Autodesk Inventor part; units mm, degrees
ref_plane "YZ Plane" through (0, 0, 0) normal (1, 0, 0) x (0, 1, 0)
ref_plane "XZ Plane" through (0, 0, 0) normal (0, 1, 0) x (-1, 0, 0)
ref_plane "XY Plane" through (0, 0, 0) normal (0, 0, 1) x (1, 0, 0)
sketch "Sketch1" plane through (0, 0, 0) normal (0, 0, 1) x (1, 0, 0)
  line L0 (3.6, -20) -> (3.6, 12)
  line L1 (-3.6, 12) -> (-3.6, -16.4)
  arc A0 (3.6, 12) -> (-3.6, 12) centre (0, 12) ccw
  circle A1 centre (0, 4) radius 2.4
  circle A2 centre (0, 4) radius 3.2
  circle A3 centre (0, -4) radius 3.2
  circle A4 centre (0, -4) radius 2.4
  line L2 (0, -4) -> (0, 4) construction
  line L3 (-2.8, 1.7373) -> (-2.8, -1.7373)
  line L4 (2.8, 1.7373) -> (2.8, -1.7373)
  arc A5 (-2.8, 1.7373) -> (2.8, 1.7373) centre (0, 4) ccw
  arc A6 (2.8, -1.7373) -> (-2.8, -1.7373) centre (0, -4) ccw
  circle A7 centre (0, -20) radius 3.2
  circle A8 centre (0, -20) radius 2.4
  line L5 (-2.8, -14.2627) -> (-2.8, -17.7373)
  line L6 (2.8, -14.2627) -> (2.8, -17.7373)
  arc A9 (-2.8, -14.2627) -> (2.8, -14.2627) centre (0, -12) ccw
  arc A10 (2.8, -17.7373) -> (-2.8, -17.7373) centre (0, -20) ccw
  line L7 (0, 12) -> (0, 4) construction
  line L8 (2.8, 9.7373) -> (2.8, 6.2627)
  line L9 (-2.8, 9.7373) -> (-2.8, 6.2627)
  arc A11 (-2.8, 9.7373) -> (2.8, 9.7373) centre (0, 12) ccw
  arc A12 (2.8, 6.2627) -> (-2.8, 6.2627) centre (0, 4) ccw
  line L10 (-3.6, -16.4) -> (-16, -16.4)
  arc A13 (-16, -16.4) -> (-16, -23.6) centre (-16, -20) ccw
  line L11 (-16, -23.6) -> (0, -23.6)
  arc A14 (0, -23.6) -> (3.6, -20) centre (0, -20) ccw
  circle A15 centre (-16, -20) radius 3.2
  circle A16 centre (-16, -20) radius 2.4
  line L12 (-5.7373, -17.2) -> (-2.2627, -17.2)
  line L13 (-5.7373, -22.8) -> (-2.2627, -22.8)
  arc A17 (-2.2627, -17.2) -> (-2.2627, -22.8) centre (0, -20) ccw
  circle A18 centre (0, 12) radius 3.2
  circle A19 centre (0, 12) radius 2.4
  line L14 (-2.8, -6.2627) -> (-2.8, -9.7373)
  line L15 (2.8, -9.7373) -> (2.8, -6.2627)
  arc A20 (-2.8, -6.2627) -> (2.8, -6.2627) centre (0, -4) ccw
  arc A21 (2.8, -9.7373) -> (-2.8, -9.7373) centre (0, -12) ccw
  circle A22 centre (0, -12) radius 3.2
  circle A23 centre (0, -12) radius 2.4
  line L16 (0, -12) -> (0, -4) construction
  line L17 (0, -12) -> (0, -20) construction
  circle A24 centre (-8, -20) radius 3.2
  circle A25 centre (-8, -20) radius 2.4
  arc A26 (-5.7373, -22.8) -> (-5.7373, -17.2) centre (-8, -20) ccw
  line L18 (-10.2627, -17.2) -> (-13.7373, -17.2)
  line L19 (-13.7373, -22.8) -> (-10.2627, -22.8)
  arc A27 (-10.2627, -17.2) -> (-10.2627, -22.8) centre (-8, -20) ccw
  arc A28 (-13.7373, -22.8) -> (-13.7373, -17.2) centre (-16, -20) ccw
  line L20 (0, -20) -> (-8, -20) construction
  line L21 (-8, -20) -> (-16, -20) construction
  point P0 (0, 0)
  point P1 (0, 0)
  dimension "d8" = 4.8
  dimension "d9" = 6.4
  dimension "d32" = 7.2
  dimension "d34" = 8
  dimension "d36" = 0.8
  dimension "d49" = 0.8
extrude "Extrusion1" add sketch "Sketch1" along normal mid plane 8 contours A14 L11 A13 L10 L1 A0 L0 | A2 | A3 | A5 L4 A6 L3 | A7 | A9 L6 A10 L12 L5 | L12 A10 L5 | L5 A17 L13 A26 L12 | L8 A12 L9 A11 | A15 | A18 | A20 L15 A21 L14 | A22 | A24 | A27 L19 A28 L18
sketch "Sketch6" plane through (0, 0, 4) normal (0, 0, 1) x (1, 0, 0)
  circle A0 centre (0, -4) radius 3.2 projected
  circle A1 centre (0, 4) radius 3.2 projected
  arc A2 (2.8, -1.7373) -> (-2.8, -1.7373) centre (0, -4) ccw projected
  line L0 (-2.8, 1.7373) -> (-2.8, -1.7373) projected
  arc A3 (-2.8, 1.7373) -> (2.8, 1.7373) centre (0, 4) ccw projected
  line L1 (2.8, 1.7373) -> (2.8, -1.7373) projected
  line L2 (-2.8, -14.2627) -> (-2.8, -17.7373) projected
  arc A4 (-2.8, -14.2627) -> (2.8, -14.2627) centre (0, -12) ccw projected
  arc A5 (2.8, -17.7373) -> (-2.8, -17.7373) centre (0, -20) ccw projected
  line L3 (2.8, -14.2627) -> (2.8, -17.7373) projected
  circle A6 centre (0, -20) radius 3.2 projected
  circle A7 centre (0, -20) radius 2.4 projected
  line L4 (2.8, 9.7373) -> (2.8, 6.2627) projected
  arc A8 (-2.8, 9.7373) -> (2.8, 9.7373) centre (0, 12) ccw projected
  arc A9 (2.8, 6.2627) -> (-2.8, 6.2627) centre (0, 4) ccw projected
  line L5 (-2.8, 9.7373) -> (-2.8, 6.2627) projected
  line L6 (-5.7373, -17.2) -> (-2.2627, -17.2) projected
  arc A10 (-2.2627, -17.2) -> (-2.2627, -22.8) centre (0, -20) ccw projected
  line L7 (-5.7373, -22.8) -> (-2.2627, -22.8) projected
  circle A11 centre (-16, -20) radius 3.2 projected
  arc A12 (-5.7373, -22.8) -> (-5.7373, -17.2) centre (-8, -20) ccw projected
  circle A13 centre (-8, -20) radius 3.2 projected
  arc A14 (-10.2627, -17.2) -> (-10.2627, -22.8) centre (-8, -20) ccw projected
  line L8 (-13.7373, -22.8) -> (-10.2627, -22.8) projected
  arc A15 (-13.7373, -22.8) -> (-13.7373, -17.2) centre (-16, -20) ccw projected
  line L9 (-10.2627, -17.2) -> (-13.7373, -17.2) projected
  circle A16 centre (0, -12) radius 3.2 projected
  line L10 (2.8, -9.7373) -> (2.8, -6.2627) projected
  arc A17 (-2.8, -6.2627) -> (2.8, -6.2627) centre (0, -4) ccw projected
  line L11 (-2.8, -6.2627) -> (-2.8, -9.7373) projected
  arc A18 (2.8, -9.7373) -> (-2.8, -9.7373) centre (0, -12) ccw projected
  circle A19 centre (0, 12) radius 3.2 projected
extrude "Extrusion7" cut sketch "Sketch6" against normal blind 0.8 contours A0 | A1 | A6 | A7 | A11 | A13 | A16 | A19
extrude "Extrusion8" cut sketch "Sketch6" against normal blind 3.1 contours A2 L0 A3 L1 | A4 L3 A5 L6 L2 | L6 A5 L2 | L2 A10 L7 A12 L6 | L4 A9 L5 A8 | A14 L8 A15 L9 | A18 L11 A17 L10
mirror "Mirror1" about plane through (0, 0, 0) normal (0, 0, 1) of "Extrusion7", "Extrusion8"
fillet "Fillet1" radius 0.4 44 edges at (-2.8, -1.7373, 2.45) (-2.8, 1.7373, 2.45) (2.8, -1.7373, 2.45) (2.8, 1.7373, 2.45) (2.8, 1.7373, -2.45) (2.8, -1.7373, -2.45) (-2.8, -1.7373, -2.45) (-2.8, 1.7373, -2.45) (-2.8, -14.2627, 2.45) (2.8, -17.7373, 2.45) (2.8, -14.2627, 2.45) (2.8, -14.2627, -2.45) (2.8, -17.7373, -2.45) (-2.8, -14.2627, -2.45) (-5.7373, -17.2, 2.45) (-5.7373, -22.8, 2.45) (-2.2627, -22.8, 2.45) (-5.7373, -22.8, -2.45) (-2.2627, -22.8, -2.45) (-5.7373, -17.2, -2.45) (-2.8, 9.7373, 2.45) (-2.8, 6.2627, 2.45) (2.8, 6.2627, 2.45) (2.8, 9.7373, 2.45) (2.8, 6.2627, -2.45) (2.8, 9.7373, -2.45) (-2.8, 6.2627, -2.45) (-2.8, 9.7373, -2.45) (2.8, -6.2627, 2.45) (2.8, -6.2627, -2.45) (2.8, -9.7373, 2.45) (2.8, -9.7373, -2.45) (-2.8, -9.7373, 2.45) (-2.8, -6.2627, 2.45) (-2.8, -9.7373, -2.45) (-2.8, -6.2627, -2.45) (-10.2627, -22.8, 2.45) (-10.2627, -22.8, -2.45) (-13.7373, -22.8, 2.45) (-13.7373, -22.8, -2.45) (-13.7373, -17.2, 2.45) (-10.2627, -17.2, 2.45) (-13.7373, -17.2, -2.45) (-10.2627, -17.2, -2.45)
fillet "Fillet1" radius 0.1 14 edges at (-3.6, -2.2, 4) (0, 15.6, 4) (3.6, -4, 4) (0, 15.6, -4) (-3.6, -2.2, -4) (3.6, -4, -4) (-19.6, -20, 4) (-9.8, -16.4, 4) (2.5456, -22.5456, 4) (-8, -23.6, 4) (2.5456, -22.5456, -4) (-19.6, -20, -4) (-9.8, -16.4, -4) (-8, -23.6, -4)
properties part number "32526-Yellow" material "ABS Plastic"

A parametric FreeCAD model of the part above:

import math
import FreeCAD as App
import Part
import Sketcher


def edges_at(feature, points):
    """Names of the edges that pass closest to the given points."""
    edges = feature.Shape.Edges
    near = lambda p: min(range(len(edges)), key=lambda i: edges[i].distToShape(Part.Vertex(*p))[0])
    return sorted({f"Edge{near(p) + 1}" for p in points})

doc = App.newDocument("Part")
body = doc.addObject("PartDesign::Body", "Body")

sketch1 = body.newObject("Sketcher::SketchObject", "Sketch")
sketch1.AttachmentSupport = (doc.getObject("XY_Plane"), [""])
sketch1.MapMode = "FlatFace"
sketch1.addGeometry([
    Part.ArcOfCircle(Part.Circle(App.Vector(0, -20, 0), App.Vector(0, 0, 1), 3.6), math.radians(-90), math.radians(0)),
    Part.LineSegment(App.Vector(3.6, -20, 0), App.Vector(3.6, 12, 0)),
    Part.ArcOfCircle(Part.Circle(App.Vector(0, 12, 0), App.Vector(0, 0, 1), 3.6), math.radians(0), math.radians(180)),
    Part.LineSegment(App.Vector(-3.6, 12, 0), App.Vector(-3.6, -16.4, 0)),
    Part.LineSegment(App.Vector(-3.6, -16.4, 0), App.Vector(-16, -16.4, 0)),
    Part.ArcOfCircle(Part.Circle(App.Vector(-16, -20, 0), App.Vector(0, 0, 1), 3.6), math.radians(90), math.radians(270)),
    Part.LineSegment(App.Vector(-16, -23.6, 0), App.Vector(0, -23.6, 0)),
    Part.Circle(App.Vector(-16, -20, 0), App.Vector(0, 0, 1), 2.4),
    Part.Circle(App.Vector(-8, -20, 0), App.Vector(0, 0, 1), 2.4),
    Part.Circle(App.Vector(0, -20, 0), App.Vector(0, 0, 1), 2.4),
    Part.Circle(App.Vector(0, -12, 0), App.Vector(0, 0, 1), 2.4),
    Part.Circle(App.Vector(0, -4, 0), App.Vector(0, 0, 1), 2.4),
    Part.Circle(App.Vector(0, 4, 0), App.Vector(0, 0, 1), 2.4),
    Part.Circle(App.Vector(0, 12, 0), App.Vector(0, 0, 1), 2.4),
], False)
sketch1.addConstraint([
    Sketcher.Constraint("Tangent", 0, 2, 1, 1),
    Sketcher.Constraint("Tangent", 1, 2, 2, 1),
    Sketcher.Constraint("Tangent", 2, 2, 3, 1),
    Sketcher.Constraint("Coincident", 3, 2, 4, 1),
    Sketcher.Constraint("Tangent", 4, 2, 5, 1),
    Sketcher.Constraint("Tangent", 5, 2, 6, 1),
    Sketcher.Constraint("Tangent", 6, 2, 0, 1),
    Sketcher.Constraint("Vertical", 1),
    Sketcher.Constraint("Vertical", 3),
    Sketcher.Constraint("Horizontal", 4),
    Sketcher.Constraint("Horizontal", 6),
    Sketcher.Constraint("Coincident", 7, 3, 5, 3),
    Sketcher.Constraint("Coincident", 9, 3, 0, 3),
    Sketcher.Constraint("Coincident", 13, 3, 2, 3),
    Sketcher.Constraint("Equal", 0, 2),
    Sketcher.Constraint("Equal", 2, 5),
    Sketcher.Constraint("Equal", 7, 8),
    Sketcher.Constraint("Equal", 8, 9),
    Sketcher.Constraint("Equal", 9, 10),
    Sketcher.Constraint("Equal", 10, 11),
    Sketcher.Constraint("Equal", 11, 12),
    Sketcher.Constraint("Equal", 12, 13),
    Sketcher.Constraint("Symmetric", 2, 3, 10, 3, -1, 1),
    Sketcher.Constraint("Symmetric", 11, 3, 12, 3, -1, 1),
    Sketcher.Constraint("PointOnObject", 0, 3, -2),
    Sketcher.Constraint("PointOnObject", 11, 3, -2),
    Sketcher.Constraint("Horizontal", 7, 3, 8, 3),
    Sketcher.Constraint("Diameter", 7, 4.8),
    Sketcher.Constraint("Radius", 0, 3.6),
    Sketcher.Constraint("DistanceX", 8, 3, -1, 1, 8.0),
    Sketcher.Constraint("DistanceX", 5, 3, 8, 3, 8.0),
    Sketcher.Constraint("DistanceY", 0, 3, 10, 3, 8.0),
    Sketcher.Constraint("DistanceY", 10, 3, 11, 3, 8.0),
    Sketcher.Constraint("DistanceY", 11, 3, 12, 3, 8.0),
])
pad1 = body.newObject("PartDesign::Pad", "Pad")
pad1.Profile = sketch1
pad1.Length = 8
pad1.Midplane = True

sketch2 = body.newObject("Sketcher::SketchObject", "Sketch001")
sketch2.AttachmentSupport = (doc.getObject("XY_Plane"), [""])
sketch2.MapMode = "FlatFace"
sketch2.AttachmentOffset = App.Placement(App.Vector(0, 0, 4), App.Rotation())
sketch2.addGeometry([
    Part.Circle(App.Vector(0, -4, 0), App.Vector(0, 0, 1), 3.2),
    Part.Circle(App.Vector(0, 4, 0), App.Vector(0, 0, 1), 3.2),
    Part.Circle(App.Vector(0, -20, 0), App.Vector(0, 0, 1), 3.2),
    Part.Circle(App.Vector(-16, -20, 0), App.Vector(0, 0, 1), 3.2),
    Part.Circle(App.Vector(-8, -20, 0), App.Vector(0, 0, 1), 3.2),
    Part.Circle(App.Vector(0, -12, 0), App.Vector(0, 0, 1), 3.2),
    Part.Circle(App.Vector(0, 12, 0), App.Vector(0, 0, 1), 3.2),
], False)
sketch2.addConstraint([
    Sketcher.Constraint("Equal", 0, 1),
    Sketcher.Constraint("Equal", 1, 2),
    Sketcher.Constraint("Equal", 2, 3),
    Sketcher.Constraint("Equal", 3, 4),
    Sketcher.Constraint("Equal", 4, 5),
    Sketcher.Constraint("Equal", 5, 6),
    Sketcher.Constraint("Symmetric", 0, 3, 1, 3, -1, 1),
    Sketcher.Constraint("Symmetric", 5, 3, 6, 3, -1, 1),
    Sketcher.Constraint("PointOnObject", 0, 3, -2),
    Sketcher.Constraint("PointOnObject", 2, 3, -2),
    Sketcher.Constraint("PointOnObject", 5, 3, -2),
    Sketcher.Constraint("Horizontal", 2, 3, 3, 3),
    Sketcher.Constraint("Horizontal", 3, 3, 4, 3),
    Sketcher.Constraint("Diameter", 0, 6.4),
    Sketcher.Constraint("DistanceY", 0, 3, -1, 1, 4.0),
    Sketcher.Constraint("DistanceY", 2, 3, -1, 1, 20.0),
    Sketcher.Constraint("DistanceX", 3, 3, -1, 1, 16.0),
    Sketcher.Constraint("DistanceX", 4, 3, -1, 1, 8.0),
    Sketcher.Constraint("DistanceY", 5, 3, -1, 1, 12.0),
])
pocket1 = body.newObject("PartDesign::Pocket", "Pocket")
pocket1.Profile = sketch2
pocket1.Length = 0.8

sketch3 = body.newObject("Sketcher::SketchObject", "Sketch002")
sketch3.AttachmentSupport = (doc.getObject("XY_Plane"), [""])
sketch3.MapMode = "FlatFace"
sketch3.AttachmentOffset = App.Placement(App.Vector(0, 0, 4), App.Rotation())
sketch3.addGeometry([
    Part.ArcOfCircle(Part.Circle(App.Vector(0, -4, 0), App.Vector(0, 0, 1), 3.599974), math.radians(38.941925), math.radians(141.058075)),
    Part.LineSegment(App.Vector(2.8, -1.7373, 0), App.Vector(2.8, 1.7373, 0)),
    Part.ArcOfCircle(Part.Circle(App.Vector(0, 4, 0), App.Vector(0, 0, 1), 3.599974), math.radians(-141.058075), math.radians(-38.941925)),
    Part.LineSegment(App.Vector(-2.8, 1.7373, 0), App.Vector(-2.8, -1.7373, 0)),
    Part.ArcOfCircle(Part.Circle(App.Vector(0, -12, 0), App.Vector(0, 0, 1), 3.599974), math.radians(-141.058075), math.radians(-38.941925)),
    Part.LineSegment(App.Vector(-2.8, -14.2627, 0), App.Vector(-2.8, -17.2, 0)),
    Part.LineSegment(App.Vector(-2.8, -17.2, 0), App.Vector(-5.7373, -17.2, 0)),
    Part.ArcOfCircle(Part.Circle(App.Vector(-8, -20, 0), App.Vector(0, 0, 1), 3.599974), math.radians(-51.058075), math.radians(51.058075)),
    Part.LineSegment(App.Vector(-5.7373, -22.8, 0), App.Vector(-2.2627, -22.8, 0)),
    Part.ArcOfCircle(Part.Circle(App.Vector(0, -20, 0), App.Vector(0, 0, 1), 3.599974), math.radians(38.941925), math.radians(231.058075)),
    Part.LineSegment(App.Vector(2.8, -17.7373, 0), App.Vector(2.8, -14.2627, 0)),
    Part.LineSegment(App.Vector(2.8, 6.2627, 0), App.Vector(2.8, 9.7373, 0)),
    Part.ArcOfCircle(Part.Circle(App.Vector(0, 12, 0), App.Vector(0, 0, 1), 3.599974), math.radians(-141.058075), math.radians(-38.941925)),
    Part.LineSegment(App.Vector(-2.8, 9.7373, 0), App.Vector(-2.8, 6.2627, 0)),
    Part.ArcOfCircle(Part.Circle(App.Vector(0, 4, 0), App.Vector(0, 0, 1), 3.599974), math.radians(38.941925), math.radians(141.058075)),
    Part.ArcOfCircle(Part.Circle(App.Vector(-8, -20, 0), App.Vector(0, 0, 1), 3.599974), math.radians(128.941925), math.radians(231.058075)),
    Part.LineSegment(App.Vector(-10.2627, -17.2, 0), App.Vector(-13.7373, -17.2, 0)),
    Part.ArcOfCircle(Part.Circle(App.Vector(-16, -20, 0), App.Vector(0, 0, 1), 3.599974), math.radians(-51.058075), math.radians(51.058075)),
    Part.LineSegment(App.Vector(-13.7373, -22.8, 0), App.Vector(-10.2627, -22.8, 0)),
    Part.ArcOfCircle(Part.Circle(App.Vector(0, -12, 0), App.Vector(0, 0, 1), 3.599974), math.radians(38.941925), math.radians(141.058075)),
    Part.LineSegment(App.Vector(2.8, -9.7373, 0), App.Vector(2.8, -6.2627, 0)),
    Part.ArcOfCircle(Part.Circle(App.Vector(0, -4, 0), App.Vector(0, 0, 1), 3.599974), math.radians(-141.058075), math.radians(-38.941925)),
    Part.LineSegment(App.Vector(-2.8, -6.2627, 0), App.Vector(-2.8, -9.7373, 0)),
], False)
sketch3.addConstraint([
    Sketcher.Constraint("Coincident", 0, 1, 1, 1),
    Sketcher.Constraint("Coincident", 1, 2, 2, 2),
    Sketcher.Constraint("Coincident", 2, 1, 3, 1),
    Sketcher.Constraint("Coincident", 3, 2, 0, 2),
    Sketcher.Constraint("Coincident", 4, 1, 5, 1),
    Sketcher.Constraint("Coincident", 5, 2, 6, 1),
    Sketcher.Constraint("Coincident", 6, 2, 7, 2),
    Sketcher.Constraint("Coincident", 7, 1, 8, 1),
    Sketcher.Constraint("Coincident", 8, 2, 9, 2),
    Sketcher.Constraint("Coincident", 9, 1, 10, 1),
    Sketcher.Constraint("Coincident", 10, 2, 4, 2),
    Sketcher.Constraint("Coincident", 11, 2, 12, 2),
    Sketcher.Constraint("Coincident", 12, 1, 13, 1),
    Sketcher.Constraint("Coincident", 13, 2, 14, 2),
    Sketcher.Constraint("Coincident", 14, 1, 11, 1),
    Sketcher.Constraint("Coincident", 15, 1, 16, 1),
    Sketcher.Constraint("Coincident", 16, 2, 17, 2),
    Sketcher.Constraint("Coincident", 17, 1, 18, 1),
    Sketcher.Constraint("Coincident", 18, 2, 15, 2),
    Sketcher.Constraint("Coincident", 19, 1, 20, 1),
    Sketcher.Constraint("Coincident", 20, 2, 21, 2),
    Sketcher.Constraint("Coincident", 21, 1, 22, 1),
    Sketcher.Constraint("Coincident", 22, 2, 19, 2),
    Sketcher.Constraint("Vertical", 1),
    Sketcher.Constraint("Vertical", 3),
    Sketcher.Constraint("Vertical", 5),
    Sketcher.Constraint("Horizontal", 6),
    Sketcher.Constraint("Horizontal", 8),
    Sketcher.Constraint("Vertical", 10),
    Sketcher.Constraint("Vertical", 11),
    Sketcher.Constraint("Vertical", 13),
    Sketcher.Constraint("Horizontal", 16),
    Sketcher.Constraint("Horizontal", 18),
    Sketcher.Constraint("Vertical", 20),
    Sketcher.Constraint("Vertical", 22),
    Sketcher.Constraint("Coincident", 14, 3, 2, 3),
    Sketcher.Constraint("Coincident", 15, 3, 7, 3),
    Sketcher.Constraint("Coincident", 19, 3, 4, 3),
    Sketcher.Constraint("Coincident", 21, 3, 0, 3),
    Sketcher.Constraint("Equal", 0, 2),
    Sketcher.Constraint("Equal", 2, 4),
    Sketcher.Constraint("Equal", 4, 7),
    Sketcher.Constraint("Equal", 7, 9),
    Sketcher.Constraint("Equal", 9, 12),
    Sketcher.Constraint("Equal", 12, 14),
    Sketcher.Constraint("Equal", 14, 15),
    Sketcher.Constraint("Equal", 15, 17),
    Sketcher.Constraint("Equal", 17, 19),
    Sketcher.Constraint("Equal", 19, 21),
    Sketcher.Constraint("Symmetric", 0, 3, 2, 3, -1, 1),
    Sketcher.Constraint("Symmetric", 4, 3, 12, 3, -1, 1),
    Sketcher.Constraint("Symmetric", 1, 2, 2, 1, -2),
    Sketcher.Constraint("Symmetric", 4, 1, 10, 2, -2),
    Sketcher.Constraint("PointOnObject", 9, 3, -2),
    Sketcher.Constraint("Horizontal", 7, 3, 9, 3),
    Sketcher.Constraint("Horizontal", 15, 3, 17, 3),
    Sketcher.Constraint("Horizontal", 11, 2, 12, 1),
    Sketcher.Constraint("Horizontal", 6, 2, 15, 1),
    Sketcher.Constraint("Horizontal", 8, 2, 17, 1),
    Sketcher.Constraint("Horizontal", 20, 2, 21, 1),
    Sketcher.Constraint("Vertical", 3, 2, 4, 1),
    Sketcher.Constraint("Vertical", 6, 2, 7, 1),
    Sketcher.Constraint("Vertical", 10, 2, 11, 2),
    Sketcher.Constraint("Vertical", 14, 1, 19, 1),
    Sketcher.Constraint("Equal", 8, 16),
    Sketcher.Constraint("Equal", 18, 1),
    Sketcher.Constraint("Equal", 6, 5),
    Sketcher.Constraint("Equal", 3, 10),
    Sketcher.Constraint("Equal", 10, 11),
    Sketcher.Constraint("Radius", 0, 3.6),
    Sketcher.Constraint("DistanceY", 0, 3, -1, 1, 4.0),
    Sketcher.Constraint("DistanceX", -1, 1, 0, 1, 2.8),
])
pocket2 = body.newObject("PartDesign::Pocket", "Pocket001")
pocket2.Profile = sketch3
pocket2.Length = 3.1
doc.recompute()

mirrored = body.newObject("PartDesign::Mirrored", "Mirrored")
mirrored.Originals = [pocket1, pocket2]
mirrored.MirrorPlane = (doc.getObject("XY_Plane"), [""])
body.Tip = mirrored
doc.recompute()

fillet = body.newObject("PartDesign::Fillet", "Fillet")
fillet.Base = (mirrored, edges_at(mirrored, [
    (-2.8, -1.737, 2.45),
    (-2.8, 1.737, 2.45),
    (2.8, -1.737, 2.45),
    (2.8, 1.737, 2.45),
    (2.8, 1.737, -2.45),
    (2.8, -1.737, -2.45),
    (-2.8, -1.737, -2.45),
    (-2.8, 1.737, -2.45),
    (-2.8, -14.263, 2.45),
    (2.8, -17.737, 2.45),
    (2.8, -14.263, 2.45),
    (2.8, -14.263, -2.45),
    (2.8, -17.737, -2.45),
    (-2.8, -14.263, -2.45),
    (-5.737, -17.2, 2.45),
    (-5.737, -22.8, 2.45),
    (-2.263, -22.8, 2.45),
    (-5.737, -22.8, -2.45),
    (-2.263, -22.8, -2.45),
    (-5.737, -17.2, -2.45),
    (-2.8, 9.737, 2.45),
    (-2.8, 6.263, 2.45),
    (2.8, 6.263, 2.45),
    (2.8, 9.737, 2.45),
    (2.8, 6.263, -2.45),
    (2.8, 9.737, -2.45),
    (-2.8, 6.263, -2.45),
    (-2.8, 9.737, -2.45),
    (2.8, -6.263, 2.45),
    (2.8, -6.263, -2.45),
    (2.8, -9.737, 2.45),
    (2.8, -9.737, -2.45),
    (-2.8, -9.737, 2.45),
    (-2.8, -6.263, 2.45),
    (-2.8, -9.737, -2.45),
    (-2.8, -6.263, -2.45),
    (-10.263, -22.8, 2.45),
    (-10.263, -22.8, -2.45),
    (-13.737, -22.8, 2.45),
    (-13.737, -22.8, -2.45),
    (-13.737, -17.2, 2.45),
    (-10.263, -17.2, 2.45),
    (-13.737, -17.2, -2.45),
    (-10.263, -17.2, -2.45),
]))
fillet.Radius = 0.4
doc.recompute()

fillet2 = body.newObject("PartDesign::Fillet", "Fillet001")
fillet2.Base = (fillet, edges_at(fillet, [
    (-3.6, -2.2, 4),
    (0, 15.6, 4),
    (3.6, -4, 4),
    (0, 15.6, -4),
    (-3.6, -2.2, -4),
    (3.6, -4, -4),
    (-19.6, -20, 4),
    (-9.8, -16.4, 4),
    (2.546, -22.546, 4),
    (-8, -23.6, 4),
    (2.546, -22.546, -4),
    (-19.6, -20, -4),
    (-9.8, -16.4, -4),
    (-8, -23.6, -4),
]))
fillet2.Radius = 0.1

doc.recompute()
